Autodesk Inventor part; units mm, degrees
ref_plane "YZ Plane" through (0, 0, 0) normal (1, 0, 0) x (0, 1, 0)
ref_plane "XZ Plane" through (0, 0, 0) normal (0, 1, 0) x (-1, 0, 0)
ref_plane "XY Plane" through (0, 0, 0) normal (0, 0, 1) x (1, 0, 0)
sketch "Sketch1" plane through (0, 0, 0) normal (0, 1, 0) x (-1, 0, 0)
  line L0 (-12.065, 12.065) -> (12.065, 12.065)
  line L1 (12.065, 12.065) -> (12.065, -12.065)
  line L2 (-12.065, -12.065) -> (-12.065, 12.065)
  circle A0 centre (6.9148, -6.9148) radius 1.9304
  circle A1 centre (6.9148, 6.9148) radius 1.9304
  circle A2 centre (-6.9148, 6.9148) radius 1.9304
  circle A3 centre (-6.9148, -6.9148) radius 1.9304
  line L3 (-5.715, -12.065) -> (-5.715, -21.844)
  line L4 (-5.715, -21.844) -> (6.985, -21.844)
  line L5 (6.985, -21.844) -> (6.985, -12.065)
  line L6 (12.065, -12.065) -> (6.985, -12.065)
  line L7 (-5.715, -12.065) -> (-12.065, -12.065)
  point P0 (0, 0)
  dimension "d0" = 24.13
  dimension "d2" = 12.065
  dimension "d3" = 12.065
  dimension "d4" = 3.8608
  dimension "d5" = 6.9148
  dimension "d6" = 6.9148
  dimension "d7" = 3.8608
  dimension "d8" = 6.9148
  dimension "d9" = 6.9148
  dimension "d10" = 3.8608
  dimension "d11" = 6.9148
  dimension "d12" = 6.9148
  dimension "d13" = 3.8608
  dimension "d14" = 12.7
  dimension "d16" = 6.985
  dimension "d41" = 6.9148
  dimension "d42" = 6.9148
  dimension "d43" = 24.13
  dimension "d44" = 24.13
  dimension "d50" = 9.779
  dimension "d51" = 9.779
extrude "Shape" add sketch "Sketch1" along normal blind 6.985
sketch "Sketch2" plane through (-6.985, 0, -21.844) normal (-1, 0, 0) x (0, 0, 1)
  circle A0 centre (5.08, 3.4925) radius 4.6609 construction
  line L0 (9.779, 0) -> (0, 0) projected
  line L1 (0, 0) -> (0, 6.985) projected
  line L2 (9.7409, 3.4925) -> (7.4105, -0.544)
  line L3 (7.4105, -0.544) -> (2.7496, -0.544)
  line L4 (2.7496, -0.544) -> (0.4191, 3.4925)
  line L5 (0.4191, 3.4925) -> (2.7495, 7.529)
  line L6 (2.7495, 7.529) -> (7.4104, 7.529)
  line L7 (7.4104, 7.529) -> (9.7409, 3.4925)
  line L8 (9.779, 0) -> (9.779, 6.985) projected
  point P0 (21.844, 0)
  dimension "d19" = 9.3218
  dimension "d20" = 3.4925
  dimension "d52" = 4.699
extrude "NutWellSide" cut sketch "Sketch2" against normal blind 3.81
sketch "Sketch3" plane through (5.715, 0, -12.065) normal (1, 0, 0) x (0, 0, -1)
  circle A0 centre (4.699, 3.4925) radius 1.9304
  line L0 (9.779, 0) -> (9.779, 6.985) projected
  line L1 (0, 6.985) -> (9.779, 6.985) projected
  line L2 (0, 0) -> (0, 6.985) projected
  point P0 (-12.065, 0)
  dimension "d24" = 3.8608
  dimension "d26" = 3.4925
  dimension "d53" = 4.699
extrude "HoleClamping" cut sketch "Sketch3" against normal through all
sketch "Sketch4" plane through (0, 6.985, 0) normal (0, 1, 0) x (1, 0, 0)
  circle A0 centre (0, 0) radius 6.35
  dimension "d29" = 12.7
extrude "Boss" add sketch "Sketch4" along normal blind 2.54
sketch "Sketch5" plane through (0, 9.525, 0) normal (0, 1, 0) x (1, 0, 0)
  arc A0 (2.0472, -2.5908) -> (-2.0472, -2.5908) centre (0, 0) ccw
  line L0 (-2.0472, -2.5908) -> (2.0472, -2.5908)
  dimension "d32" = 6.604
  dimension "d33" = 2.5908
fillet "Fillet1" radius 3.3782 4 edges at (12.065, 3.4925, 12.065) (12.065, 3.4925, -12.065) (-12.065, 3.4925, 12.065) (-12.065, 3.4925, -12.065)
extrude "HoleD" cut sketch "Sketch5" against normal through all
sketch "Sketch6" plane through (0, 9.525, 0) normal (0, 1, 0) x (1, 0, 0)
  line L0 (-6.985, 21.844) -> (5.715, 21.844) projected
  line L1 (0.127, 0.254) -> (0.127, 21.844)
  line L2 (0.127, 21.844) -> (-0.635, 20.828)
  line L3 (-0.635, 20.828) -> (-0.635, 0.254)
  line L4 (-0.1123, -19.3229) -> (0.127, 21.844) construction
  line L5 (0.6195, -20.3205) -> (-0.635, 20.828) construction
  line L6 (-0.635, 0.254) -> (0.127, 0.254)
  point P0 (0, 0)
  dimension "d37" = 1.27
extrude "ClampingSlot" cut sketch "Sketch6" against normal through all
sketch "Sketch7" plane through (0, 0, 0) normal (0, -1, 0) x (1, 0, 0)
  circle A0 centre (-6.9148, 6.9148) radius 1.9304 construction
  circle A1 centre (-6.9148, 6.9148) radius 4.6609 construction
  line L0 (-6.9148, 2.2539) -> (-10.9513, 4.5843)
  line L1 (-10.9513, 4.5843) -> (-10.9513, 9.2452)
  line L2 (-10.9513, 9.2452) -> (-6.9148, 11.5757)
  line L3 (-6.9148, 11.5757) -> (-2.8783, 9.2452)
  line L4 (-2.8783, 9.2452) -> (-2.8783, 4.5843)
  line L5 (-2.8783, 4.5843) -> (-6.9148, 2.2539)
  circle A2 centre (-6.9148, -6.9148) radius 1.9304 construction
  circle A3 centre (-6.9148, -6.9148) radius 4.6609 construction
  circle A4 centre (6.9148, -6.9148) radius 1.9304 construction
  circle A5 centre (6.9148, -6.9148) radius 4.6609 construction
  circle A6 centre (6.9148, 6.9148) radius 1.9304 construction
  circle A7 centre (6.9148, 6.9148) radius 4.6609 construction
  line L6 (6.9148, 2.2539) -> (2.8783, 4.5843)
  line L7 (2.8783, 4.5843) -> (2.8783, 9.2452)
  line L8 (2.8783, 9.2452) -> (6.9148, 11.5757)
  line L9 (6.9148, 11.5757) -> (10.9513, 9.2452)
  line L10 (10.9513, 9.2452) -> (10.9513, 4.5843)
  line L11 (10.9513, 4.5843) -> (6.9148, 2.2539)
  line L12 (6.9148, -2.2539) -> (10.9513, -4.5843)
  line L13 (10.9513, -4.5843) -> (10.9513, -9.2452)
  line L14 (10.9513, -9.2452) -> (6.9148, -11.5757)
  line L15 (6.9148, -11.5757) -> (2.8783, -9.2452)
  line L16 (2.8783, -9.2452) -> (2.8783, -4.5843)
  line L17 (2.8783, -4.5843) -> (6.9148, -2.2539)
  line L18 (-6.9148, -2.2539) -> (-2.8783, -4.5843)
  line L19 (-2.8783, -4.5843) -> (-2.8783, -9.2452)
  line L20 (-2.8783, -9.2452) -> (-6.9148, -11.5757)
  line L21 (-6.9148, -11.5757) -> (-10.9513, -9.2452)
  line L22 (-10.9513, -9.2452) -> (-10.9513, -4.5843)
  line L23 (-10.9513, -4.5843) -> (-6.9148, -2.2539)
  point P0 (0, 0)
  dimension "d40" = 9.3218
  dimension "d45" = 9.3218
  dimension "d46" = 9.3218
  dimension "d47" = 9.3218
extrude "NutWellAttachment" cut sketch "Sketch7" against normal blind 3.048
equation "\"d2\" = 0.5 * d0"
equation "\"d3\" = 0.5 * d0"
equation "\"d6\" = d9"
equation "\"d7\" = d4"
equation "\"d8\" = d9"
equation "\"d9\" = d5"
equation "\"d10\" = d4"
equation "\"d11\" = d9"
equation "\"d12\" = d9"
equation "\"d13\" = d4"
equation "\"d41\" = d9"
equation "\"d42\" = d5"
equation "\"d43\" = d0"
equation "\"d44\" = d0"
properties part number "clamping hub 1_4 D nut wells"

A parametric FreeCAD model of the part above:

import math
import FreeCAD as App
import Part
import Sketcher

V = App.Vector
Q = App.Units.Quantity


def edges_at(feature, points):
    """Names of the edges that pass closest to the given points."""
    edges = feature.Shape.Edges
    near = lambda p: min(range(len(edges)), key=lambda i: edges[i].distToShape(Part.Vertex(*p))[0])
    return sorted({f"Edge{near(p) + 1}" for p in points})


def add_polygon(sketch, points):
    """Adds a closed chain of lines whose ends are joined by coincident constraints."""
    first, n = sketch.GeometryCount, len(points)
    for a, b in zip(points, points[1:] + points[:1]):
        sketch.addGeometry(Part.LineSegment(App.Vector(*a, 0), App.Vector(*b, 0)), False)
    for i in range(n):
        sketch.addConstraint(Sketcher.Constraint("Coincident", first + i, 2, first + (i + 1) % n, 1))

doc = App.newDocument("Part")
body = doc.addObject("PartDesign::Body", "Body")

# Sketch on XZ plane
sketch1 = body.newObject("Sketcher::SketchObject", "Sketch")
sketch1.AttachmentSupport = (doc.getObject("XZ_Plane"), [""])
sketch1.MapMode = "FlatFace"
add_polygon(sketch1, [(-12.065, 12.065), (12.065, 12.065), (12.065, -12.065), (5.715, -12.065), (5.715, -21.844), (-6.985, -21.844), (-6.985, -12.065), (-12.065, -12.065)])  # lines 0-7
sketch1.addGeometry(Part.Circle(V(6.9148, -6.9148, 0), V(0, 0, 1), 1.9304), False)  # 8
sketch1.addGeometry(Part.Circle(V(-6.9148, -6.9148, 0), V(0, 0, 1), 1.9304), False)  # 9
sketch1.addGeometry(Part.Circle(V(6.9148, 6.9148, 0), V(0, 0, 1), 1.9304), False)  # 10
sketch1.addGeometry(Part.Circle(V(-6.9148, 6.9148, 0), V(0, 0, 1), 1.9304), False)  # 11
sketch1.addConstraint(Sketcher.Constraint("Horizontal", 0))
sketch1.addConstraint(Sketcher.Constraint("Vertical", 1))
sketch1.addConstraint(Sketcher.Constraint("Horizontal", 2))
sketch1.addConstraint(Sketcher.Constraint("Vertical", 3))
sketch1.addConstraint(Sketcher.Constraint("Horizontal", 4))
sketch1.addConstraint(Sketcher.Constraint("Vertical", 5))
sketch1.addConstraint(Sketcher.Constraint("Horizontal", 6))
sketch1.addConstraint(Sketcher.Constraint("Vertical", 7))
sketch1.addConstraint(Sketcher.Constraint("Equal", 8, 9))
sketch1.addConstraint(Sketcher.Constraint("Equal", 9, 10))
sketch1.addConstraint(Sketcher.Constraint("Equal", 10, 11))
sketch1.addConstraint(Sketcher.Constraint("Symmetric", 9, 3, 10, 3, -1, 1))
sketch1.addConstraint(Sketcher.Constraint("Symmetric", 8, 3, 11, 3, -1, 1))
sketch1.addConstraint(Sketcher.Constraint("Symmetric", 0, 2, 6, 2, -1, 1))
sketch1.addConstraint(Sketcher.Constraint("Symmetric", 8, 3, 9, 3, -2))
sketch1.addConstraint(Sketcher.Constraint("Horizontal", 2, 2, 5, 2))
sketch1.addConstraint(Sketcher.Constraint("Equal", 0, 1))
sketch1.addConstraint(Sketcher.Constraint("Diameter", 8, Q("0.152 in")))
sketch1.addConstraint(Sketcher.Constraint("DistanceX", 4, 2, 4, 1, Q("0.5 in")))
sketch1.addConstraint(Sketcher.Constraint("DistanceX", 0, 1, 0, 2, Q("0.95 in")))
sketch1.addConstraint(Sketcher.Constraint("DistanceY", 3, 2, 3, 1, Q("0.385 in")))
sketch1.addConstraint(Sketcher.Constraint("DistanceX", 6, 2, 6, 1, Q("0.2 in")))
sketch1.addConstraint(Sketcher.Constraint("DistanceX", -1, 1, 8, 3, Q("6.9148 mm")))
sketch1.addConstraint(Sketcher.Constraint("DistanceY", 8, 3, -1, 1, Q("6.9148 mm")))
pad1 = body.newObject("PartDesign::Pad", "Pad")
pad1.Profile = sketch1
pad1.Length = Q("0.275 in")
pad1.Reversed = True

# Sketch on YZ plane
sketch2 = body.newObject("Sketcher::SketchObject", "Sketch001")
sketch2.AttachmentSupport = (doc.getObject("YZ_Plane"), [""])
sketch2.MapMode = "FlatFace"
sketch2.AttachmentOffset = App.Placement(V(0, 0, -0.275 * 25.4), App.Rotation())
add_polygon(sketch2, [(-0.544, -14.4335), (3.4925, -12.1031), (7.529, -14.4336), (7.529, -19.0945), (3.4925, -21.4249), (-0.544, -19.0944)])  # lines 0-5
sketch2.addConstraint(Sketcher.Constraint("Vertical", 2))
sketch2.addConstraint(Sketcher.Constraint("Vertical", 5))
sketch2.addConstraint(Sketcher.Constraint("Parallel", 0, 3))
sketch2.addConstraint(Sketcher.Constraint("Parallel", 1, 4))
sketch2.addConstraint(Sketcher.Constraint("Horizontal", 2, 2, 4, 2))
sketch2.addConstraint(Sketcher.Constraint("Horizontal", 1, 2, 5, 2))
sketch2.addConstraint(Sketcher.Constraint("Vertical", 0, 2, 3, 2))
sketch2.addConstraint(Sketcher.Constraint("Angle", 0, Q("29.9992 deg")))
sketch2.addConstraint(Sketcher.Constraint("DistanceY", 3, 2, 0, 2, Q("0.367 in")))
sketch2.addConstraint(Sketcher.Constraint("DistanceX", -1, 1, 0, 2, Q("0.1375 in")))
sketch2.addConstraint(Sketcher.Constraint("DistanceY", 2, 2, 2, 1, Q("0.1835 in")))
sketch2.addConstraint(Sketcher.Constraint("DistanceY", 0, 2, -1, 1, Q("0.4765 in")))
pocket1 = body.newObject("PartDesign::Pocket", "Pocket")
pocket1.Profile = sketch2
pocket1.Length = Q("0.15 in")
pocket1.Reversed = True

# Sketch on YZ plane
sketch3 = body.newObject("Sketcher::SketchObject", "Sketch002")
sketch3.AttachmentSupport = (doc.getObject("YZ_Plane"), [""])
sketch3.MapMode = "FlatFace"
sketch3.AttachmentOffset = App.Placement(V(0, 0, 0.225 * 25.4), App.Rotation())
sketch3.addGeometry(Part.Circle(V(3.4925, -16.764, 0), V(0, 0, 1), 1.9304), False)
sketch3.addConstraint(Sketcher.Constraint("Diameter", 0, Q("0.152 in")))
sketch3.addConstraint(Sketcher.Constraint("DistanceX", -1, 1, 0, 3, Q("0.1375 in")))
sketch3.addConstraint(Sketcher.Constraint("DistanceY", 0, 3, -1, 1, Q("0.66 in")))
pocket2 = body.newObject("PartDesign::Pocket", "Pocket001")
pocket2.Profile = sketch3
pocket2.Type = "ThroughAll"

# Sketch on XZ plane
sketch4 = body.newObject("Sketcher::SketchObject", "Sketch003")
sketch4.AttachmentSupport = (doc.getObject("XZ_Plane"), [""])
sketch4.MapMode = "FlatFace"
sketch4.AttachmentOffset = App.Placement(V(0, 0, -0.275 * 25.4), App.Rotation())
sketch4.addGeometry(Part.Circle(V(0, 0, 0), V(0, 0, 1), 6.35), False)
sketch4.addConstraint(Sketcher.Constraint("Coincident", 0, 3, -1, 1))
sketch4.addConstraint(Sketcher.Constraint("Diameter", 0, Q("0.5 in")))
pad2 = body.newObject("PartDesign::Pad", "Pad001")
pad2.Profile = sketch4
pad2.Length = Q("0.1 in")
pad2.Reversed = True
doc.recompute()

fillet = body.newObject("PartDesign::Fillet", "Fillet")
fillet.Base = (pad2, edges_at(pad2, [
    (12.065, 3.493, 12.065),
    (12.065, 3.493, -12.065),
    (-12.065, 3.493, 12.065),
    (-12.065, 3.493, -12.065),
]))
fillet.Radius = Q("0.133 in")

# Sketch on XZ plane
sketch5 = body.newObject("Sketcher::SketchObject", "Sketch004")
sketch5.AttachmentSupport = (doc.getObject("XZ_Plane"), [""])
sketch5.MapMode = "FlatFace"
sketch5.AttachmentOffset = App.Placement(V(0, 0, -0.375 * 25.4), App.Rotation())
sketch5.addGeometry(Part.LineSegment(V(-2.0472, 2.5908, 0), V(2.0472, 2.5908, 0)), False)
sketch5.addGeometry(Part.ArcOfCircle(Part.Circle(V(0, 0, 0), V(0, 0, 1), 3.30201), math.radians(128.315108), math.radians(411.684892)), False)
sketch5.addConstraint(Sketcher.Constraint("Coincident", 0, 1, 1, 1))
sketch5.addConstraint(Sketcher.Constraint("Coincident", 1, 2, 0, 2))
sketch5.addConstraint(Sketcher.Constraint("Horizontal", 0))
sketch5.addConstraint(Sketcher.Constraint("Coincident", 1, 3, -1, 1))
sketch5.addConstraint(Sketcher.Constraint("Radius", 1, Q("0.13 in")))
sketch5.addConstraint(Sketcher.Constraint("DistanceY", -1, 1, 0, 1, Q("0.102 in")))
pocket3 = body.newObject("PartDesign::Pocket", "Pocket002")
pocket3.Profile = sketch5
pocket3.Type = "ThroughAll"
pocket3.Reversed = True

# Sketch on XZ plane
sketch6 = body.newObject("Sketcher::SketchObject", "Sketch005")
sketch6.AttachmentSupport = (doc.getObject("XZ_Plane"), [""])
sketch6.MapMode = "FlatFace"
sketch6.AttachmentOffset = App.Placement(V(0, 0, -0.375 * 25.4), App.Rotation())
add_polygon(sketch6, [(-0.635, -0.254), (0.127, -0.254), (0.127, -21.844), (-0.635, -20.828)])  # lines 0-3
sketch6.addConstraint(Sketcher.Constraint("Horizontal", 0))
sketch6.addConstraint(Sketcher.Constraint("Vertical", 1))
sketch6.addConstraint(Sketcher.Constraint("Vertical", 3))
sketch6.addConstraint(Sketcher.Constraint("Distance", 2, Q("0.05 in")))
sketch6.addConstraint(Sketcher.Constraint("DistanceX", 0, 1, 0, 2, Q("0.03 in")))
sketch6.addConstraint(Sketcher.Constraint("DistanceY", 1, 2, 1, 1, Q("0.85 in")))
sketch6.addConstraint(Sketcher.Constraint("DistanceY", 0, 2, -1, 1, Q("0.01 in")))
sketch6.addConstraint(Sketcher.Constraint("DistanceX", -1, 1, 0, 2, Q("0.005 in")))
pocket4 = body.newObject("PartDesign::Pocket", "Pocket003")
pocket4.Profile = sketch6
pocket4.Type = "ThroughAll"
pocket4.Reversed = True

# Sketch on XZ plane
sketch7 = body.newObject("Sketcher::SketchObject", "Sketch006")
sketch7.AttachmentSupport = (doc.getObject("XZ_Plane"), [""])
sketch7.MapMode = "FlatFace"
add_polygon(sketch7, [(-10.9513, 4.5843), (-6.9148, 2.2539), (-2.8783, 4.5843), (-2.8783, 9.2452), (-6.9148, 11.5757), (-10.9513, 9.2452)])  # lines 0-5
add_polygon(sketch7, [(2.8783, 4.5843), (6.9148, 2.2539), (10.9513, 4.5843), (10.9513, 9.2452), (6.9148, 11.5757), (2.8783, 9.2452)])  # lines 6-11
add_polygon(sketch7, [(10.9513, -4.5843), (6.9148, -2.2539), (2.8783, -4.5843), (2.8783, -9.2452), (6.9148, -11.5757), (10.9513, -9.2452)])  # lines 12-17
add_polygon(sketch7, [(-2.8783, -4.5843), (-6.9148, -2.2539), (-10.9513, -4.5843), (-10.9513, -9.2452), (-6.9148, -11.5757), (-2.8783, -9.2452)])  # lines 18-23
sketch7.addConstraint(Sketcher.Constraint("Vertical", 2))
sketch7.addConstraint(Sketcher.Constraint("Vertical", 5))
sketch7.addConstraint(Sketcher.Constraint("Vertical", 8))
sketch7.addConstraint(Sketcher.Constraint("Vertical", 11))
sketch7.addConstraint(Sketcher.Constraint("Vertical", 14))
sketch7.addConstraint(Sketcher.Constraint("Vertical", 17))
sketch7.addConstraint(Sketcher.Constraint("Vertical", 20))
sketch7.addConstraint(Sketcher.Constraint("Vertical", 23))
sketch7.addConstraint(Sketcher.Constraint("Symmetric", 0, 2, 12, 2, -1, 1))
sketch7.addConstraint(Sketcher.Constraint("Symmetric", 1, 2, 13, 2, -1, 1))
sketch7.addConstraint(Sketcher.Constraint("Symmetric", 3, 2, 15, 2, -1, 1))
sketch7.addConstraint(Sketcher.Constraint("Symmetric", 4, 2, 16, 2, -1, 1))
sketch7.addConstraint(Sketcher.Constraint("Symmetric", 6, 2, 18, 2, -1, 1))
sketch7.addConstraint(Sketcher.Constraint("Symmetric", 7, 2, 19, 2, -1, 1))
sketch7.addConstraint(Sketcher.Constraint("Symmetric", 9, 2, 21, 2, -1, 1))
sketch7.addConstraint(Sketcher.Constraint("Symmetric", 10, 2, 22, 2, -1, 1))
sketch7.addConstraint(Sketcher.Constraint("Symmetric", 0, 2, 6, 2, -2))
sketch7.addConstraint(Sketcher.Constraint("Symmetric", 5, 2, 7, 2, -2))
sketch7.addConstraint(Sketcher.Constraint("Symmetric", 3, 2, 9, 2, -2))
sketch7.addConstraint(Sketcher.Constraint("Symmetric", 2, 2, 10, 2, -2))
sketch7.addConstraint(Sketcher.Constraint("Parallel", 0, 3))
sketch7.addConstraint(Sketcher.Constraint("Parallel", 1, 4))
sketch7.addConstraint(Sketcher.Constraint("Parallel", 3, 6))
sketch7.addConstraint(Sketcher.Constraint("Parallel", 4, 7))
sketch7.addConstraint(Sketcher.Constraint("Parallel", 6, 9))
sketch7.addConstraint(Sketcher.Constraint("Parallel", 9, 12))
sketch7.addConstraint(Sketcher.Constraint("Parallel", 12, 15))
sketch7.addConstraint(Sketcher.Constraint("Parallel", 15, 18))
sketch7.addConstraint(Sketcher.Constraint("Parallel", 18, 21))
sketch7.addConstraint(Sketcher.Constraint("Horizontal", 2, 2, 4, 2))
sketch7.addConstraint(Sketcher.Constraint("Horizontal", 1, 2, 5, 2))
sketch7.addConstraint(Sketcher.Constraint("Angle", 0, Q("-29.9992 deg")))
sketch7.addConstraint(Sketcher.Constraint("DistanceY", 0, 2, 3, 2, Q("0.367 in")))
sketch7.addConstraint(Sketcher.Constraint("DistanceY", 2, 1, 2, 2, Q("0.1835 in")))
sketch7.addConstraint(Sketcher.Constraint("DistanceX", 5, 2, 6, 2, Q("0.7034 in")))
sketch7.addConstraint(Sketcher.Constraint("DistanceY", -1, 1, 0, 2, Q("2.254 mm")))
pocket5 = body.newObject("PartDesign::Pocket", "Pocket004")
pocket5.Profile = sketch7
pocket5.Length = Q("0.12 in")

doc.recompute()
